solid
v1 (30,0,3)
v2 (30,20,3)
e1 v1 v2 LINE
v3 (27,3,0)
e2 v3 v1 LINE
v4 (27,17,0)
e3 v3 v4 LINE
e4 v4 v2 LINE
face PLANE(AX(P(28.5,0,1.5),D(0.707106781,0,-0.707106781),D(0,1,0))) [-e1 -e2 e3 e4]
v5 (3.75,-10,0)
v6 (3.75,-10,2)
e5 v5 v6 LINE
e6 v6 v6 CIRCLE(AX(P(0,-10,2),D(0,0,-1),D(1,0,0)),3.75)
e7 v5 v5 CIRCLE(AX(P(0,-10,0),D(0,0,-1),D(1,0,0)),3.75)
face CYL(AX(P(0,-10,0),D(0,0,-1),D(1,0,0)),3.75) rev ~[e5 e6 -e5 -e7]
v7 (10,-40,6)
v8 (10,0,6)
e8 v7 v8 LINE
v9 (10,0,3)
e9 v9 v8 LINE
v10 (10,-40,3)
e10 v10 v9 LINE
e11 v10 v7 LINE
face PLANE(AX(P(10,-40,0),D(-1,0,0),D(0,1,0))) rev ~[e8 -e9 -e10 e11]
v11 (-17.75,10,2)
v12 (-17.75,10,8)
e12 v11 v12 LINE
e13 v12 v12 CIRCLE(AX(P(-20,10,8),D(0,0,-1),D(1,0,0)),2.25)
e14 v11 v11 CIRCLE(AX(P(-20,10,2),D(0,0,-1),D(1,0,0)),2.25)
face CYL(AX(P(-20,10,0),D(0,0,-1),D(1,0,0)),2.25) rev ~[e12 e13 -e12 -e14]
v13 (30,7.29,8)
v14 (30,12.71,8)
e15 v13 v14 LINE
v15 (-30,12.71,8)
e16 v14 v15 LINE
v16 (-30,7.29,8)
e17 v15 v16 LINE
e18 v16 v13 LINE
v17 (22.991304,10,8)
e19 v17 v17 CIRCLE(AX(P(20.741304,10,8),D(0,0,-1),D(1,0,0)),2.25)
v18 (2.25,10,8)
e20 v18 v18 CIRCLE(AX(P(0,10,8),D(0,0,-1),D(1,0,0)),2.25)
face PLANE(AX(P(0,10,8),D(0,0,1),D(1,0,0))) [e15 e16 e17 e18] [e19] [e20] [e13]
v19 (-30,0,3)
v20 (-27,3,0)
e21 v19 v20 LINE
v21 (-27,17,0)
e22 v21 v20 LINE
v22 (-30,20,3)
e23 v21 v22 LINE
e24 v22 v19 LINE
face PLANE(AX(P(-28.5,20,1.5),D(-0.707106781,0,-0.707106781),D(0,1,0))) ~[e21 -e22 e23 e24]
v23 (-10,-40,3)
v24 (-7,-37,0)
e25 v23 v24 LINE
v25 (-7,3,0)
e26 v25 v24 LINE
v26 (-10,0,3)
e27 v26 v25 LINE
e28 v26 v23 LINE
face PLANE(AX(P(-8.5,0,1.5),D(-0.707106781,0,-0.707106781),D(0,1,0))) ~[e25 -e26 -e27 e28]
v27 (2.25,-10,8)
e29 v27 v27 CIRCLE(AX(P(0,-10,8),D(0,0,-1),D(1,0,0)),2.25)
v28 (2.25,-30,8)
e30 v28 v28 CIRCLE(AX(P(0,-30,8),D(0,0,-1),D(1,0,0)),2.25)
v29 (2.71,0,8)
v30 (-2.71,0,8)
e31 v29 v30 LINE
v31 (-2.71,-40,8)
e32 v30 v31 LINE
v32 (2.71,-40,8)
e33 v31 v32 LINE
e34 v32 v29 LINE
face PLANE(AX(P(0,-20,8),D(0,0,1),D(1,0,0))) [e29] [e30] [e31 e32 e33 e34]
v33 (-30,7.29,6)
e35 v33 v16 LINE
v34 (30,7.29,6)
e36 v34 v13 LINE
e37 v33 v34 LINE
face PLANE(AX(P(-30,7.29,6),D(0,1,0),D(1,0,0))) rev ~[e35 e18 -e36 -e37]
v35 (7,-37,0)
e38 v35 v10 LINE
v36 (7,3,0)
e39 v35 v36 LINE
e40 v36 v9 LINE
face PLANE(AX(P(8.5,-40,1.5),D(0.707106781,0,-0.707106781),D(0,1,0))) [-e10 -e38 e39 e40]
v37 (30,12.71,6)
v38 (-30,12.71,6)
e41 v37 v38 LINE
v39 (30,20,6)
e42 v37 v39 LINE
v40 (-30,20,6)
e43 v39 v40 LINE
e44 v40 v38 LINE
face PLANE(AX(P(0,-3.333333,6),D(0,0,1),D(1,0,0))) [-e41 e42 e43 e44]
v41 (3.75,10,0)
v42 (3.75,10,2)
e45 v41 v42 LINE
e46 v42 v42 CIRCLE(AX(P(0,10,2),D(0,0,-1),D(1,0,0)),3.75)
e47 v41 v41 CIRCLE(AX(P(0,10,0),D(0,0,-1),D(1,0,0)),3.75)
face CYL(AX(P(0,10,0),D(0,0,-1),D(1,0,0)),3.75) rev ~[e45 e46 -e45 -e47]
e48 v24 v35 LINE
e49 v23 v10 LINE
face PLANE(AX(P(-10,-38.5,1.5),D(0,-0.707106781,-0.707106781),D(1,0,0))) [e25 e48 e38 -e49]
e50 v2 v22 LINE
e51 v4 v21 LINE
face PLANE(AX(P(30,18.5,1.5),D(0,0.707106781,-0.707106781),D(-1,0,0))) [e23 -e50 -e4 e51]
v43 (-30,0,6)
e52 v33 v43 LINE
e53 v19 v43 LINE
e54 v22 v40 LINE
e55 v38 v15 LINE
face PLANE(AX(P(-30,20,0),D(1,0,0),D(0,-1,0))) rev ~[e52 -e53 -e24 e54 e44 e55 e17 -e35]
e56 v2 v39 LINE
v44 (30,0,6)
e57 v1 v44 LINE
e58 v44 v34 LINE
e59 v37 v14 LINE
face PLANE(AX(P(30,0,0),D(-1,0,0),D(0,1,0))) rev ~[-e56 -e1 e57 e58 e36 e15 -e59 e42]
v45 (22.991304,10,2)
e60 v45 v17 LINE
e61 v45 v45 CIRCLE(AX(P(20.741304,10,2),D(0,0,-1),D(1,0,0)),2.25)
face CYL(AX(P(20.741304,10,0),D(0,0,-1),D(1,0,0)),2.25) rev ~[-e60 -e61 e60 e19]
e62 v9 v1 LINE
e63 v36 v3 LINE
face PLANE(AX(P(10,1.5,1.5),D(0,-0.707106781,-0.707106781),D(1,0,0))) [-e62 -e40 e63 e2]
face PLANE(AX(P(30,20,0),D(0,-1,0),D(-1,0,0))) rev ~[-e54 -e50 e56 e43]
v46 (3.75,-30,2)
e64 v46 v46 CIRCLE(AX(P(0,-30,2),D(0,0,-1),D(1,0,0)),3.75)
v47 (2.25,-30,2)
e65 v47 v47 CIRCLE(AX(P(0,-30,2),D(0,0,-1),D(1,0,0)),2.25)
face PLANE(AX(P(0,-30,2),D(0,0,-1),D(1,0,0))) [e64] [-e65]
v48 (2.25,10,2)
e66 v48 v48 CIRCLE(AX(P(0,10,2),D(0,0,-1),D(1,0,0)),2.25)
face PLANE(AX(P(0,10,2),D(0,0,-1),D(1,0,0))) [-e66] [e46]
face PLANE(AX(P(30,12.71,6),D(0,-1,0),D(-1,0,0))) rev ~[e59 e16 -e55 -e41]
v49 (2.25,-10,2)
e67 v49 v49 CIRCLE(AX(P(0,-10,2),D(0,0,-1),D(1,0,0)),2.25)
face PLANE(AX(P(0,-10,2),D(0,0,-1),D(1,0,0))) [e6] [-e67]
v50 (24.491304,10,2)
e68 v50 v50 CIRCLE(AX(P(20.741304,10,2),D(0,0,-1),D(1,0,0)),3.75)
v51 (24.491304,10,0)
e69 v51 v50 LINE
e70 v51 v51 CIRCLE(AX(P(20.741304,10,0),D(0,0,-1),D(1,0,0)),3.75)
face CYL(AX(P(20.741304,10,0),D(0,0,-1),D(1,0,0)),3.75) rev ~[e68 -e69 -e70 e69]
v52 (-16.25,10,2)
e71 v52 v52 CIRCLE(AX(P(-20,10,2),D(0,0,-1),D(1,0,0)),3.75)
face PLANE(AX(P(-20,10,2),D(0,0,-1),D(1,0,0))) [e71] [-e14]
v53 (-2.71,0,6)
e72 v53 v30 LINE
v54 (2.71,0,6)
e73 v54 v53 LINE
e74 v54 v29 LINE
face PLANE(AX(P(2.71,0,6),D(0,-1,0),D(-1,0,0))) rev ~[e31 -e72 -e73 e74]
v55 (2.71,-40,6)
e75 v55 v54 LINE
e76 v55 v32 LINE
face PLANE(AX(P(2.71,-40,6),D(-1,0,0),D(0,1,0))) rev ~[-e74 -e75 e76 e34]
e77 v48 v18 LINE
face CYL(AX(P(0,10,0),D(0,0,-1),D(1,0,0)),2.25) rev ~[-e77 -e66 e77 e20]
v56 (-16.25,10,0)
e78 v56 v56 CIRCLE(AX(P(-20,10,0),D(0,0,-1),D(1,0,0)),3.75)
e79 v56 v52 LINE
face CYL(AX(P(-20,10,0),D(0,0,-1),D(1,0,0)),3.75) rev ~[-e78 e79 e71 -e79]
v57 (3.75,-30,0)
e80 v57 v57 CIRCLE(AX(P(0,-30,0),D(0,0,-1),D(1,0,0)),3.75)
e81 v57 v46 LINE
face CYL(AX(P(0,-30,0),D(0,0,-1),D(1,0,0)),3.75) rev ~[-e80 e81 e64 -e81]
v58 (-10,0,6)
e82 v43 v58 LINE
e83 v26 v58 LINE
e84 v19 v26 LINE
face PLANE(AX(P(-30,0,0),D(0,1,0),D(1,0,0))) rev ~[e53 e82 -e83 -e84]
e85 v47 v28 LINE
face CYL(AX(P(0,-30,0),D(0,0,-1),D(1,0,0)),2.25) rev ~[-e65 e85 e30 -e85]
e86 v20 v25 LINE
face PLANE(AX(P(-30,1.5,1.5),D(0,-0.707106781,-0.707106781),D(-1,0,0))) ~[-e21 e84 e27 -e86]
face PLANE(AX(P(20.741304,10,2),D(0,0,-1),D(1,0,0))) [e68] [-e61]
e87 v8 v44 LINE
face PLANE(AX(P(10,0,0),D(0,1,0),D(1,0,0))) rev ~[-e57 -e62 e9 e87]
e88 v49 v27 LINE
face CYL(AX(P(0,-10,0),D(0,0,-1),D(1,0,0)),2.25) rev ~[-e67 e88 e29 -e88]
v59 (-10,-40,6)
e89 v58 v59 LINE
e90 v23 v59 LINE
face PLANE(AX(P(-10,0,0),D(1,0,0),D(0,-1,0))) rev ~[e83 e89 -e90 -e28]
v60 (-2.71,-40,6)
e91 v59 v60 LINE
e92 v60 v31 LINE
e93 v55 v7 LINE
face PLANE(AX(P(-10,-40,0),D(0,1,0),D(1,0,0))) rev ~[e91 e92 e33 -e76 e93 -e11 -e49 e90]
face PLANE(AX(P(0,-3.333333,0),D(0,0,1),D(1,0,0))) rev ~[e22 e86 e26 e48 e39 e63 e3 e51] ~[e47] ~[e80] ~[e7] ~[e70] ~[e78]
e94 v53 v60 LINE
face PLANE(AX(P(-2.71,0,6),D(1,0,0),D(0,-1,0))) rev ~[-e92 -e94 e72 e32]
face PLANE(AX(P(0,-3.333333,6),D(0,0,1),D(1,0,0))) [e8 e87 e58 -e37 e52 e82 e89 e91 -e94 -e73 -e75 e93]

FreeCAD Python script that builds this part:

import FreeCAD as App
import Part
import Sketcher


def edges_at(feature, points):
    """Names of the edges that pass closest to the given points."""
    edges = feature.Shape.Edges
    near = lambda p: min(range(len(edges)), key=lambda i: edges[i].distToShape(Part.Vertex(*p))[0])
    return sorted({f"Edge{near(p) + 1}" for p in points})

doc = App.newDocument("Part")
params = doc.addObject("Spreadsheet::Sheet", "Params")
for row, (alias, value) in enumerate([
    ("sketch1_width", "20 mm"),
    ("sketch1_height", "40 mm"),
    ("pad1_length", "6 mm"),
    ("sketch2_width", "60 mm"),
    ("sketch2_height", "40 mm"),
    ("sketch2_width2", "5.42 mm"),
    ("pad2_length", "2 mm"),
    ("sketch3_diameter", "4.5 mm"),
    ("sketch4_diameter", "7.5 mm"),
    ("pocket2_length", "2 mm"),
    ("chamfer_size", "3 mm"),
], start=1):
    params.set(f"A{row}", alias)
    params.set(f"B{row}", "=" + value)
    params.setAlias(f"B{row}", alias)

body = doc.addObject("PartDesign::Body", "Body")

# Sketch on XY plane
sketch1 = doc.addObject("Sketcher::SketchObject", "Sketch")
body.addObject(sketch1)
sketch1.AttachmentSupport = (doc.XY_Plane, [""])
sketch1.MapMode = "FlatFace"
sketch1.addGeometry([
    Part.LineSegment(App.Vector(-30, 0, 0), App.Vector(-10, 0, 0)),  # 0
    Part.LineSegment(App.Vector(-10, 0, 0), App.Vector(-10, -40, 0)),  # 1
    Part.LineSegment(App.Vector(-10, -40, 0), App.Vector(10, -40, 0)),  # 2
    Part.LineSegment(App.Vector(10, -40, 0), App.Vector(10, 0, 0)),  # 3
    Part.LineSegment(App.Vector(10, 0, 0), App.Vector(30, 0, 0)),  # 4
    Part.LineSegment(App.Vector(30, 0, 0), App.Vector(30, 20, 0)),  # 5
    Part.LineSegment(App.Vector(30, 20, 0), App.Vector(-30, 20, 0)),  # 6
    Part.LineSegment(App.Vector(-30, 20, 0), App.Vector(-30, 0, 0)),  # 7
], False)
sketch1.addConstraint([
    Sketcher.Constraint("Coincident", 0, 2, 1, 1),
    Sketcher.Constraint("Coincident", 1, 2, 2, 1),
    Sketcher.Constraint("Coincident", 2, 2, 3, 1),
    Sketcher.Constraint("Coincident", 3, 2, 4, 1),
    Sketcher.Constraint("Coincident", 4, 2, 5, 1),
    Sketcher.Constraint("Coincident", 5, 2, 6, 1),
    Sketcher.Constraint("Coincident", 6, 2, 7, 1),
    Sketcher.Constraint("Coincident", 7, 2, 0, 1),
    Sketcher.Constraint("Horizontal", 0),
    Sketcher.Constraint("Vertical", 1),
    Sketcher.Constraint("Horizontal", 2),
    Sketcher.Constraint("Vertical", 3),
    Sketcher.Constraint("Horizontal", 4),
    Sketcher.Constraint("Vertical", 5),
    Sketcher.Constraint("Horizontal", 6),
    Sketcher.Constraint("Vertical", 7),
    Sketcher.Constraint("Symmetric", 0, 2, 3, 2, -1, 1),
    Sketcher.Constraint("Symmetric", 4, 2, 7, 2, -2),
    Sketcher.Constraint("Equal", 0, 2),
    Sketcher.Constraint("Equal", 4, 5),
    Sketcher.Constraint("DistanceX", 0, 1, 0, 2, 20.0),
    Sketcher.Constraint("DistanceY", 1, 2, 1, 1, 40.0),
])
sketch1.setExpression("Constraints[20]", "Params.sketch1_width")
sketch1.setExpression("Constraints[21]", "Params.sketch1_height")
pad1 = doc.addObject("PartDesign::Pad", "Pad")
body.addObject(pad1)
pad1.Profile = sketch1
pad1.setExpression("Length", "Params.pad1_length")

# Sketch on XY plane
sketch2 = doc.addObject("Sketcher::SketchObject", "Sketch001")
body.addObject(sketch2)
sketch2.AttachmentSupport = (doc.XY_Plane, [""])
sketch2.MapMode = "FlatFace"
sketch2.AttachmentOffset = App.Placement(App.Vector(0, 0, 6), App.Rotation())
sketch2.addGeometry([
    Part.LineSegment(App.Vector(3, 0, 0), App.Vector(-3, 0, 0)),  # 0
    Part.LineSegment(App.Vector(-3, 0, 0), App.Vector(-3, -40, 0)),  # 1
    Part.LineSegment(App.Vector(-3, -40, 0), App.Vector(3, -40, 0)),  # 2
    Part.LineSegment(App.Vector(3, -40, 0), App.Vector(3, 0, 0)),  # 3
    Part.LineSegment(App.Vector(30, 7, 0), App.Vector(30, 13, 0)),  # 4
    Part.LineSegment(App.Vector(30, 13, 0), App.Vector(-30, 13, 0)),  # 5
    Part.LineSegment(App.Vector(-30, 13, 0), App.Vector(-30, 7, 0)),  # 6
    Part.LineSegment(App.Vector(-30, 7, 0), App.Vector(30, 7, 0)),  # 7
], False)
sketch2.addConstraint([
    Sketcher.Constraint("Coincident", 0, 2, 1, 1),
    Sketcher.Constraint("Coincident", 1, 2, 2, 1),
    Sketcher.Constraint("Coincident", 2, 2, 3, 1),
    Sketcher.Constraint("Coincident", 3, 2, 0, 1),
    Sketcher.Constraint("Coincident", 4, 2, 5, 1),
    Sketcher.Constraint("Coincident", 5, 2, 6, 1),
    Sketcher.Constraint("Coincident", 6, 2, 7, 1),
    Sketcher.Constraint("Coincident", 7, 2, 4, 1),
    Sketcher.Constraint("Horizontal", 0),
    Sketcher.Constraint("Vertical", 1),
    Sketcher.Constraint("Horizontal", 2),
    Sketcher.Constraint("Vertical", 3),
    Sketcher.Constraint("Vertical", 4),
    Sketcher.Constraint("Horizontal", 5),
    Sketcher.Constraint("Vertical", 6),
    Sketcher.Constraint("Horizontal", 7),
    Sketcher.Constraint("Symmetric", 0, 2, 3, 2, -1, 1),
    Sketcher.Constraint("Equal", 2, 4),
    Sketcher.Constraint("DistanceX", 5, 2, 5, 1, 60.0),
    Sketcher.Constraint("DistanceY", 1, 2, 1, 1, 40.0),
    Sketcher.Constraint("DistanceX", -1, 1, 4, 2, 30.0),
    Sketcher.Constraint("DistanceX", 0, 2, 0, 1, 5.42),
    Sketcher.Constraint("DistanceY", -1, 1, 4, 2, 12.71),
])
sketch2.setExpression("Constraints[18]", "Params.sketch2_width")
sketch2.setExpression("Constraints[19]", "Params.sketch2_height")
sketch2.setExpression("Constraints[21]", "Params.sketch2_width2")
pad2 = doc.addObject("PartDesign::Pad", "Pad001")
body.addObject(pad2)
pad2.Profile = sketch2
pad2.setExpression("Length", "Params.pad2_length")

# Sketch on XY plane
sketch3 = doc.addObject("Sketcher::SketchObject", "Sketch002")
body.addObject(sketch3)
sketch3.AttachmentSupport = (doc.XY_Plane, [""])
sketch3.MapMode = "FlatFace"
sketch3.addGeometry([
    Part.Circle(App.Vector(-20, 10, 0), App.Vector(0, 0, 1), 2.2),  # 0
    Part.Circle(App.Vector(0, -10, 0), App.Vector(0, 0, 1), 2.2),  # 1
    Part.Circle(App.Vector(0, -30, 0), App.Vector(0, 0, 1), 2.2),  # 2
    Part.Circle(App.Vector(20.7, 10, 0), App.Vector(0, 0, 1), 2.2),  # 3
    Part.Circle(App.Vector(0, 10, 0), App.Vector(0, 0, 1), 2.2),  # 4
], False)
sketch3.addConstraint([
    Sketcher.Constraint("Equal", 0, 1),
    Sketcher.Constraint("Equal", 1, 2),
    Sketcher.Constraint("Equal", 2, 3),
    Sketcher.Constraint("Equal", 3, 4),
    Sketcher.Constraint("Symmetric", 1, 3, 4, 3, -1, 1),
    Sketcher.Constraint("PointOnObject", 1, 3, -2),
    Sketcher.Constraint("PointOnObject", 2, 3, -2),
    Sketcher.Constraint("Horizontal", 0, 3, 3, 3),
    Sketcher.Constraint("Horizontal", 3, 3, 4, 3),
    Sketcher.Constraint("Diameter", 0, 4.5),
    Sketcher.Constraint("DistanceX", 0, 3, -1, 1, 20.0),
    Sketcher.Constraint("DistanceY", -1, 1, 0, 3, 10.0),
    Sketcher.Constraint("DistanceY", 2, 3, -1, 1, 30.0),
    Sketcher.Constraint("DistanceX", -1, 1, 3, 3, 20.741304),
])
sketch3.setExpression("Constraints[9]", "Params.sketch3_diameter")
pocket1 = doc.addObject("PartDesign::Pocket", "Pocket")
body.addObject(pocket1)
pocket1.Profile = sketch3
pocket1.Type = "ThroughAll"
pocket1.Reversed = True

# Sketch on XY plane
sketch4 = doc.addObject("Sketcher::SketchObject", "Sketch003")
body.addObject(sketch4)
sketch4.AttachmentSupport = (doc.XY_Plane, [""])
sketch4.MapMode = "FlatFace"
sketch4.addGeometry([
    Part.Circle(App.Vector(0, -30, 0), App.Vector(0, 0, 1), 3.8),  # 0
    Part.Circle(App.Vector(0, -10, 0), App.Vector(0, 0, 1), 3.8),  # 1
    Part.Circle(App.Vector(20.7, 10, 0), App.Vector(0, 0, 1), 3.8),  # 2
    Part.Circle(App.Vector(-20, 10, 0), App.Vector(0, 0, 1), 3.8),  # 3
    Part.Circle(App.Vector(0, 10, 0), App.Vector(0, 0, 1), 3.8),  # 4
], False)
sketch4.addConstraint([
    Sketcher.Constraint("Equal", 0, 1),
    Sketcher.Constraint("Equal", 1, 2),
    Sketcher.Constraint("Equal", 2, 3),
    Sketcher.Constraint("Equal", 3, 4),
    Sketcher.Constraint("Symmetric", 1, 3, 4, 3, -1, 1),
    Sketcher.Constraint("PointOnObject", 0, 3, -2),
    Sketcher.Constraint("PointOnObject", 1, 3, -2),
    Sketcher.Constraint("Horizontal", 2, 3, 3, 3),
    Sketcher.Constraint("Horizontal", 3, 3, 4, 3),
    Sketcher.Constraint("Diameter", 0, 7.5),
    Sketcher.Constraint("DistanceY", 0, 3, -1, 1, 30.0),
    Sketcher.Constraint("DistanceY", 1, 3, -1, 1, 10.0),
    Sketcher.Constraint("DistanceX", 3, 3, -1, 1, 20.0),
    Sketcher.Constraint("DistanceX", -1, 1, 2, 3, 20.741304),
])
sketch4.setExpression("Constraints[9]", "Params.sketch4_diameter")
pocket2 = doc.addObject("PartDesign::Pocket", "Pocket001")
body.addObject(pocket2)
pocket2.Profile = sketch4
pocket2.setExpression("Length", "Params.pocket2_length")
pocket2.Reversed = True
doc.recompute()

chamfer = doc.addObject("PartDesign::Chamfer", "Chamfer")
body.addObject(chamfer)
chamfer.Base = (pocket2, edges_at(pocket2, [
    (-10, -20, 0),
    (-20, 0, 0),
    (10, -20, 0),
    (20, 0, 0),
    (0, 20, 0),
    (30, 10, 0),
    (-30, 10, 0),
    (0, -40, 0),
]))
chamfer.setExpression("Size", "Params.chamfer_size")

doc.recompute()
